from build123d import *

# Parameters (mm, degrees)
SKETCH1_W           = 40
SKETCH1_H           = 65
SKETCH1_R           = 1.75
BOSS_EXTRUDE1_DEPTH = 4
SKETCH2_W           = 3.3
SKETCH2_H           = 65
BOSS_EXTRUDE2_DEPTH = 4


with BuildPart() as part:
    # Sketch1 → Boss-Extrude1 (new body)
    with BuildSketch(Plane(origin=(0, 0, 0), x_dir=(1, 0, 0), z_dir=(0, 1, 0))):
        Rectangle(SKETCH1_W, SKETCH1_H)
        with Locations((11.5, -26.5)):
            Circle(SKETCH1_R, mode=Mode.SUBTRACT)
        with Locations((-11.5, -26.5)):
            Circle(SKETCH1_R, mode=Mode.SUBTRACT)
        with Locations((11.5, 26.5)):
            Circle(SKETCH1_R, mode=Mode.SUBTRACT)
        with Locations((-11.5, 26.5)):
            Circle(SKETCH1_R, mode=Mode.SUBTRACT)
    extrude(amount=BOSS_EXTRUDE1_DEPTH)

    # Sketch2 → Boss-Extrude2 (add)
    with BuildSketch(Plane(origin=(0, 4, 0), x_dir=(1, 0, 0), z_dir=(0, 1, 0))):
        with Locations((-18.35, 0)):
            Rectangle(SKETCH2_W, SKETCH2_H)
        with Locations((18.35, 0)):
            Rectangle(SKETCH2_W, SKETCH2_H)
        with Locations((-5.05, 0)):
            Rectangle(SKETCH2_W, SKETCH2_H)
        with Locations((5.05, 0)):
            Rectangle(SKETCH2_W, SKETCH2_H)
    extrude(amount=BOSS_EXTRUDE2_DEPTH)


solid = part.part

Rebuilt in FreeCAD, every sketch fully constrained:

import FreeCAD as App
import Part
import Sketcher
from FreeCAD import Vector
Q = App.Units.Quantity

doc = App.newDocument("Part")
params = doc.addObject("Spreadsheet::Sheet", "Params")
for row, (alias, value) in enumerate([
    ("sketch1_diameter", "3.5 mm"),
    ("sketch1_width", "40 mm"),
    ("sketch1_height", "65 mm"),
    ("pad1_length", "4 mm"),
    ("sketch2_height", "65 mm"),
    ("sketch2_width", "3.3 mm"),
    ("pad2_length", "4 mm"),
], start=1):
    params.set(f"A{row}", alias)
    params.set(f"B{row}", "=" + value)
    params.setAlias(f"B{row}", alias)

body = doc.addObject("PartDesign::Body", "Body")

sketch1 = doc.addObject("Sketcher::SketchObject", "Sketch")
body.addObject(sketch1)
sketch1.AttachmentSupport = (doc.XZ_Plane, [""])
sketch1.MapMode = "FlatFace"
sketch1.addGeometry(Part.LineSegment(Vector(-20, -32.5, 0), Vector(-20, 32.5, 0)), False)
sketch1.addGeometry(Part.LineSegment(Vector(-20, 32.5, 0), Vector(20, 32.5, 0)), False)
sketch1.addGeometry(Part.LineSegment(Vector(20, 32.5, 0), Vector(20, -32.5, 0)), False)
sketch1.addGeometry(Part.LineSegment(Vector(20, -32.5, 0), Vector(-20, -32.5, 0)), False)
sketch1.addGeometry(Part.Circle(Vector(-11.5, 26.5, 0), Vector(0, 0, 1), 1.75), False)
sketch1.addGeometry(Part.Circle(Vector(11.5, 26.5, 0), Vector(0, 0, 1), 1.75), False)
sketch1.addGeometry(Part.Circle(Vector(-11.5, -26.5, 0), Vector(0, 0, 1), 1.75), False)
sketch1.addGeometry(Part.Circle(Vector(11.5, -26.5, 0), Vector(0, 0, 1), 1.75), False)
sketch1.addConstraint(Sketcher.Constraint("Coincident", 0, 2, 1, 1))
sketch1.addConstraint(Sketcher.Constraint("Coincident", 1, 2, 2, 1))
sketch1.addConstraint(Sketcher.Constraint("Coincident", 2, 2, 3, 1))
sketch1.addConstraint(Sketcher.Constraint("Coincident", 3, 2, 0, 1))
sketch1.addConstraint(Sketcher.Constraint("Vertical", 0))
sketch1.addConstraint(Sketcher.Constraint("Horizontal", 1))
sketch1.addConstraint(Sketcher.Constraint("Vertical", 2))
sketch1.addConstraint(Sketcher.Constraint("Horizontal", 3))
sketch1.addConstraint(Sketcher.Constraint("Equal", 4, 5))
sketch1.addConstraint(Sketcher.Constraint("Equal", 5, 6))
sketch1.addConstraint(Sketcher.Constraint("Equal", 6, 7))
sketch1.addConstraint(Sketcher.Constraint("Symmetric", 5, 3, 6, 3, -1, 1))
sketch1.addConstraint(Sketcher.Constraint("Symmetric", 4, 3, 7, 3, -1, 1))
sketch1.addConstraint(Sketcher.Constraint("Symmetric", 0, 2, 2, 2, -1, 1))
sketch1.addConstraint(Sketcher.Constraint("Symmetric", 4, 3, 5, 3, -2))
sketch1.addConstraint(Sketcher.Constraint("Diameter", 4, Q("3.5 mm")))
sketch1.addConstraint(Sketcher.Constraint("DistanceX", 1, 1, 1, 2, Q("40 mm")))
sketch1.addConstraint(Sketcher.Constraint("DistanceY", 0, 1, 0, 2, Q("65 mm")))
sketch1.addConstraint(Sketcher.Constraint("DistanceX", 4, 3, 5, 3, Q("23 mm")))
sketch1.addConstraint(Sketcher.Constraint("DistanceY", 6, 3, 4, 3, Q("53 mm")))
sketch1.setExpression("Constraints[15]", "Params.sketch1_diameter")
sketch1.setExpression("Constraints[16]", "Params.sketch1_width")
sketch1.setExpression("Constraints[17]", "Params.sketch1_height")
pad1 = doc.addObject("PartDesign::Pad", "Pad")
body.addObject(pad1)
pad1.Profile = sketch1
pad1.setExpression("Length", "Params.pad1_length")
pad1.Reversed = True

sketch2 = doc.addObject("Sketcher::SketchObject", "Sketch001")
body.addObject(sketch2)
sketch2.AttachmentSupport = (doc.XZ_Plane, [""])
sketch2.MapMode = "FlatFace"
sketch2.AttachmentOffset = App.Placement(Vector(0, 0, -4), App.Rotation())
sketch2.addGeometry(Part.LineSegment(Vector(-20, -32.5, 0), Vector(-20, 32.5, 0)), False)
sketch2.addGeometry(Part.LineSegment(Vector(-20, 32.5, 0), Vector(-16.7, 32.5, 0)), False)
sketch2.addGeometry(Part.LineSegment(Vector(-16.7, 32.5, 0), Vector(-16.7, -32.5, 0)), False)
sketch2.addGeometry(Part.LineSegment(Vector(-16.7, -32.5, 0), Vector(-20, -32.5, 0)), False)
sketch2.addGeometry(Part.LineSegment(Vector(16.7, -32.5, 0), Vector(16.7, 32.5, 0)), False)
sketch2.addGeometry(Part.LineSegment(Vector(16.7, 32.5, 0), Vector(20, 32.5, 0)), False)
sketch2.addGeometry(Part.LineSegment(Vector(20, 32.5, 0), Vector(20, -32.5, 0)), False)
sketch2.addGeometry(Part.LineSegment(Vector(20, -32.5, 0), Vector(16.7, -32.5, 0)), False)
sketch2.addGeometry(Part.LineSegment(Vector(-6.7, -32.5, 0), Vector(-6.7, 32.5, 0)), False)
sketch2.addGeometry(Part.LineSegment(Vector(-6.7, 32.5, 0), Vector(-3.4, 32.5, 0)), False)
sketch2.addGeometry(Part.LineSegment(Vector(-3.4, 32.5, 0), Vector(-3.4, -32.5, 0)), False)
sketch2.addGeometry(Part.LineSegment(Vector(-3.4, -32.5, 0), Vector(-6.7, -32.5, 0)), False)
sketch2.addGeometry(Part.LineSegment(Vector(3.4, -32.5, 0), Vector(3.4, 32.5, 0)), False)
sketch2.addGeometry(Part.LineSegment(Vector(3.4, 32.5, 0), Vector(6.7, 32.5, 0)), False)
sketch2.addGeometry(Part.LineSegment(Vector(6.7, 32.5, 0), Vector(6.7, -32.5, 0)), False)
sketch2.addGeometry(Part.LineSegment(Vector(6.7, -32.5, 0), Vector(3.4, -32.5, 0)), False)
sketch2.addConstraint(Sketcher.Constraint("Coincident", 0, 2, 1, 1))
sketch2.addConstraint(Sketcher.Constraint("Coincident", 1, 2, 2, 1))
sketch2.addConstraint(Sketcher.Constraint("Coincident", 2, 2, 3, 1))
sketch2.addConstraint(Sketcher.Constraint("Coincident", 3, 2, 0, 1))
sketch2.addConstraint(Sketcher.Constraint("Coincident", 4, 2, 5, 1))
sketch2.addConstraint(Sketcher.Constraint("Coincident", 5, 2, 6, 1))
sketch2.addConstraint(Sketcher.Constraint("Coincident", 6, 2, 7, 1))
sketch2.addConstraint(Sketcher.Constraint("Coincident", 7, 2, 4, 1))
sketch2.addConstraint(Sketcher.Constraint("Coincident", 8, 2, 9, 1))
sketch2.addConstraint(Sketcher.Constraint("Coincident", 9, 2, 10, 1))
sketch2.addConstraint(Sketcher.Constraint("Coincident", 10, 2, 11, 1))
sketch2.addConstraint(Sketcher.Constraint("Coincident", 11, 2, 8, 1))
sketch2.addConstraint(Sketcher.Constraint("Coincident", 12, 2, 13, 1))
sketch2.addConstraint(Sketcher.Constraint("Coincident", 13, 2, 14, 1))
sketch2.addConstraint(Sketcher.Constraint("Coincident", 14, 2, 15, 1))
sketch2.addConstraint(Sketcher.Constraint("Coincident", 15, 2, 12, 1))
sketch2.addConstraint(Sketcher.Constraint("Vertical", 0))
sketch2.addConstraint(Sketcher.Constraint("Horizontal", 1))
sketch2.addConstraint(Sketcher.Constraint("Vertical", 2))
sketch2.addConstraint(Sketcher.Constraint("Horizontal", 3))
sketch2.addConstraint(Sketcher.Constraint("Vertical", 4))
sketch2.addConstraint(Sketcher.Constraint("Horizontal", 5))
sketch2.addConstraint(Sketcher.Constraint("Vertical", 6))
sketch2.addConstraint(Sketcher.Constraint("Horizontal", 7))
sketch2.addConstraint(Sketcher.Constraint("Vertical", 8))
sketch2.addConstraint(Sketcher.Constraint("Horizontal", 9))
sketch2.addConstraint(Sketcher.Constraint("Vertical", 10))
sketch2.addConstraint(Sketcher.Constraint("Horizontal", 11))
sketch2.addConstraint(Sketcher.Constraint("Vertical", 12))
sketch2.addConstraint(Sketcher.Constraint("Horizontal", 13))
sketch2.addConstraint(Sketcher.Constraint("Vertical", 14))
sketch2.addConstraint(Sketcher.Constraint("Horizontal", 15))
sketch2.addConstraint(Sketcher.Constraint("Symmetric", 2, 2, 4, 2, -1, 1))
sketch2.addConstraint(Sketcher.Constraint("Symmetric", 0, 2, 6, 2, -1, 1))
sketch2.addConstraint(Sketcher.Constraint("Symmetric", 10, 2, 12, 2, -1, 1))
sketch2.addConstraint(Sketcher.Constraint("Symmetric", 8, 2, 14, 2, -1, 1))
sketch2.addConstraint(Sketcher.Constraint("Horizontal", 1, 2, 4, 2))
sketch2.addConstraint(Sketcher.Constraint("Horizontal", 5, 2, 8, 2))
sketch2.addConstraint(Sketcher.Constraint("Horizontal", 7, 2, 10, 2))
sketch2.addConstraint(Sketcher.Constraint("Equal", 7, 9))
sketch2.addConstraint(Sketcher.Constraint("DistanceY", 0, 1, 0, 2, Q("65 mm")))
sketch2.addConstraint(Sketcher.Constraint("DistanceX", 1, 1, 1, 2, Q("3.3 mm")))
sketch2.addConstraint(Sketcher.Constraint("DistanceX", 0, 2, -1, 1, Q("20 mm")))
sketch2.addConstraint(Sketcher.Constraint("DistanceX", 1, 2, 8, 2, Q("10 mm")))
sketch2.setExpression("Constraints[40]", "Params.sketch2_height")
sketch2.setExpression("Constraints[41]", "Params.sketch2_width")
pad2 = doc.addObject("PartDesign::Pad", "Pad001")
body.addObject(pad2)
pad2.Profile = sketch2
pad2.setExpression("Length", "Params.pad2_length")
pad2.Reversed = True

doc.recompute()
